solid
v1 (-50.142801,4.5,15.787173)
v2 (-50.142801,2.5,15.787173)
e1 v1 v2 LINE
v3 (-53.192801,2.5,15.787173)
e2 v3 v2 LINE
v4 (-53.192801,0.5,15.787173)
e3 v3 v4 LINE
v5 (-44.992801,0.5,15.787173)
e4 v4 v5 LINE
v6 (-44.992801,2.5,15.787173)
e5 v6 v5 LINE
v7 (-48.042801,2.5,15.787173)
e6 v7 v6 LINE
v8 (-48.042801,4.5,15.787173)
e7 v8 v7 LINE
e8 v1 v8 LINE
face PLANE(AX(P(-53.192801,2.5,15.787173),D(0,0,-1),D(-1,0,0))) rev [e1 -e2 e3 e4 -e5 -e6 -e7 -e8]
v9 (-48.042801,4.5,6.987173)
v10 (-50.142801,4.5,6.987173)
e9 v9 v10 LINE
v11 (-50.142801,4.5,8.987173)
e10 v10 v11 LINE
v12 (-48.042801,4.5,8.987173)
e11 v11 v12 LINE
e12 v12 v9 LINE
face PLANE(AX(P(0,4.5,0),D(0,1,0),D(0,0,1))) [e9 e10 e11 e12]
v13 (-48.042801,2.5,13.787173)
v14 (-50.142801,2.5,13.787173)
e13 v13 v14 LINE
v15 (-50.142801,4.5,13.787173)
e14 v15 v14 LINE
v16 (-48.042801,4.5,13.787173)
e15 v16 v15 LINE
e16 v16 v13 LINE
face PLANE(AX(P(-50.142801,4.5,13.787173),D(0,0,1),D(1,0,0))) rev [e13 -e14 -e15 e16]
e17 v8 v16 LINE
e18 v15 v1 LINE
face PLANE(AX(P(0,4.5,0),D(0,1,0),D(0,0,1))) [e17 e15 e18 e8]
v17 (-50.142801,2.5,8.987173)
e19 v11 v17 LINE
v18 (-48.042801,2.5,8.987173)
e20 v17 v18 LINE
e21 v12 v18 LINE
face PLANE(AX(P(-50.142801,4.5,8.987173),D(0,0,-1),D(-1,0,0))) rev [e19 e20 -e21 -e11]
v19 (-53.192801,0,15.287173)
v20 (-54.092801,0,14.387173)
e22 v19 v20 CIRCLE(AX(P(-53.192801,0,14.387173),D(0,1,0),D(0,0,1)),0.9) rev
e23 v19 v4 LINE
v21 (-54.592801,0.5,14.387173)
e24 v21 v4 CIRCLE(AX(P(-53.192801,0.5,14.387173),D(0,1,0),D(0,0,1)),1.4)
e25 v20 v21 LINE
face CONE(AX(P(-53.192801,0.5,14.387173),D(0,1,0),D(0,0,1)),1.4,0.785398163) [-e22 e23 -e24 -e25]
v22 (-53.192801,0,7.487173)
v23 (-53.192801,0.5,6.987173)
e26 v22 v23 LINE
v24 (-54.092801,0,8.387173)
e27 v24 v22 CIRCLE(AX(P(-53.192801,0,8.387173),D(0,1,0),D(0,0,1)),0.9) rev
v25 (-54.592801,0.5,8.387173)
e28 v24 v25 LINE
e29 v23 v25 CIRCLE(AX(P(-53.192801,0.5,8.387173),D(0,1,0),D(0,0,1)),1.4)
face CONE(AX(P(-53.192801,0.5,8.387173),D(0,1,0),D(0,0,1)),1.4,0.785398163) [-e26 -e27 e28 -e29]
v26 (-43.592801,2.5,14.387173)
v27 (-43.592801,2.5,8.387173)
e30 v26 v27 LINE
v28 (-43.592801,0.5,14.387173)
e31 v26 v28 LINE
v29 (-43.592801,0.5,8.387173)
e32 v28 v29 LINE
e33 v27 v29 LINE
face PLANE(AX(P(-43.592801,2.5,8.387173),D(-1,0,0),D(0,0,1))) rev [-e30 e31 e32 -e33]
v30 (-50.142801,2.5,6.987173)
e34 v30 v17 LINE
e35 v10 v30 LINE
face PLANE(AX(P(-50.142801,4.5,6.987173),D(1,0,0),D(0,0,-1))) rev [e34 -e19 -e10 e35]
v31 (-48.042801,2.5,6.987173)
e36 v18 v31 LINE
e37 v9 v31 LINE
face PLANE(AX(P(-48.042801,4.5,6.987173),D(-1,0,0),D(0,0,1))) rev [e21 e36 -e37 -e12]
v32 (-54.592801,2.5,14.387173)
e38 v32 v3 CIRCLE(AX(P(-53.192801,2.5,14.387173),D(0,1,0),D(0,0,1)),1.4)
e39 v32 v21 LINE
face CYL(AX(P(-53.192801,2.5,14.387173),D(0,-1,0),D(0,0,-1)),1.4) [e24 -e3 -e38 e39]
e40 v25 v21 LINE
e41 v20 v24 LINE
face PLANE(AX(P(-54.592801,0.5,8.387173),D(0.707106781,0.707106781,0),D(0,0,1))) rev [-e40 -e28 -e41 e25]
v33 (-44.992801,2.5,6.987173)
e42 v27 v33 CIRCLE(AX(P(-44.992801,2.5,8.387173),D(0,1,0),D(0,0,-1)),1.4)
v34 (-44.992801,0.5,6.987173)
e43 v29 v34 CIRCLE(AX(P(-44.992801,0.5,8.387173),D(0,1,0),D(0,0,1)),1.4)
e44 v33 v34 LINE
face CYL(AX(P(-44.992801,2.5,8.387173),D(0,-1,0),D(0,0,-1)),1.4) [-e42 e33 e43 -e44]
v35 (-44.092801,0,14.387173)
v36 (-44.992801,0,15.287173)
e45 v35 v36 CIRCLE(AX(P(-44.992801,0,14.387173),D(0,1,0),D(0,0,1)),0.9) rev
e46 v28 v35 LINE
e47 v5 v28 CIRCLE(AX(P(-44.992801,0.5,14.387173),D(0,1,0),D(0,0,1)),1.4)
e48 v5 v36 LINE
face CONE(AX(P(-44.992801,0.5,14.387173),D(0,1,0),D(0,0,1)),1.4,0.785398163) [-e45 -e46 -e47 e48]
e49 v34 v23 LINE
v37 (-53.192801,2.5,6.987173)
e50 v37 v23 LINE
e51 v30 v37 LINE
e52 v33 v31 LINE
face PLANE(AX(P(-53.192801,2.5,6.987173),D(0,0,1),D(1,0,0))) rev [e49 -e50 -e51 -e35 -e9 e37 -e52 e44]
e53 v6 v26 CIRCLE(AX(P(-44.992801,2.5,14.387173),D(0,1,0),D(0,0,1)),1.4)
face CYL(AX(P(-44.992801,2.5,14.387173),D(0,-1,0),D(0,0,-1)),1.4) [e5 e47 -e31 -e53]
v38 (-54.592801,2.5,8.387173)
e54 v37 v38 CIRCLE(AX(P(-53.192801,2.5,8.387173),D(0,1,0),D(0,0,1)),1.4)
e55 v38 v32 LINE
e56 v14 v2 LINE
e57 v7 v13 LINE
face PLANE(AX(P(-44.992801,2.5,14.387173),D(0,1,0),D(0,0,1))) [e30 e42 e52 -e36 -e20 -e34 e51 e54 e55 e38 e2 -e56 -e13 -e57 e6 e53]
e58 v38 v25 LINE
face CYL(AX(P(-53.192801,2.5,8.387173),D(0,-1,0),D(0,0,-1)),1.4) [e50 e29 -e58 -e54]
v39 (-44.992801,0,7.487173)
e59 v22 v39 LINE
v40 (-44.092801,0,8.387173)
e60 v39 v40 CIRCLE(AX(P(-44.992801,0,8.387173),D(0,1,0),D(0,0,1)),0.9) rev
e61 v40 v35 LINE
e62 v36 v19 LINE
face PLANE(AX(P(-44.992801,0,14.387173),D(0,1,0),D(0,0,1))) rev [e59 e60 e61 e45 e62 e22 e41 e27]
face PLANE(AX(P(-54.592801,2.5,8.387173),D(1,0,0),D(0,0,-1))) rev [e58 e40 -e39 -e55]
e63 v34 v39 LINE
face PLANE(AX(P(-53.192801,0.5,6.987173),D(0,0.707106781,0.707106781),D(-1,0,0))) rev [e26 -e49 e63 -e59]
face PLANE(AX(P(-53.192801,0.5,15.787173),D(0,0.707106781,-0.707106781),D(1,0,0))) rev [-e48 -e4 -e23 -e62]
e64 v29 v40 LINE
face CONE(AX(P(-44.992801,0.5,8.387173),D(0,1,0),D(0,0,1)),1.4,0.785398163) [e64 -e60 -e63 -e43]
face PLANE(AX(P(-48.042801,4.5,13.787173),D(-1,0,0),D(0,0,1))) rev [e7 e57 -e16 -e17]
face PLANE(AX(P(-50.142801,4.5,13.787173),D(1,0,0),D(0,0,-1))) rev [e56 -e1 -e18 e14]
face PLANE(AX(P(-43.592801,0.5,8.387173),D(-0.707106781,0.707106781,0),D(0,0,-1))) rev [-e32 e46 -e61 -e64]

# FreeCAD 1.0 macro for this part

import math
import FreeCAD as App
import Part
import Sketcher
Q = App.Units.Quantity


def edges_at(feature, points):
    """Names of the edges that pass closest to the given points."""
    edges = feature.Shape.Edges
    near = lambda p: min(range(len(edges)), key=lambda i: edges[i].distToShape(Part.Vertex(*p))[0])
    return sorted({f"Edge{near(p) + 1}" for p in points})

doc = App.newDocument("Part")
params = doc.addObject("Spreadsheet::Sheet", "Params")
for row, (alias, value) in enumerate([
    ("sketch1_radius", "1.4 mm"),
    ("sketch1_height", "6 mm"),
    ("sketch1_width", "8.2 mm"),
    ("pad1_length", "2.5 mm"),
    ("chamfer_size", "0.5 mm"),
    ("sketch2_height", "2 mm"),
    ("sketch2_width", "2.1 mm"),
    ("pad2_length", "2 mm"),
], start=1):
    params.set(f"A{row}", alias)
    params.set(f"B{row}", "=" + value)
    params.setAlias(f"B{row}", alias)

body = doc.addObject("PartDesign::Body", "Body")

sketch1 = body.newObject("Sketcher::SketchObject", "Sketch")
sketch1.AttachmentSupport = (doc.getObject("XZ_Plane"), [""])
sketch1.MapMode = "FlatFace"
sketch1.addGeometry(Part.LineSegment(App.Vector(-44.992801, 6.987173, 0), App.Vector(-53.192801, 6.987173, 0)), False)
sketch1.addGeometry(Part.ArcOfCircle(Part.Circle(App.Vector(-53.192801, 8.387173, 0), App.Vector(0, 0, 1), 1.4), math.radians(-180), math.radians(-90)), False)
sketch1.addGeometry(Part.LineSegment(App.Vector(-54.592801, 8.387173, 0), App.Vector(-54.592801, 14.387173, 0)), False)
sketch1.addGeometry(Part.ArcOfCircle(Part.Circle(App.Vector(-53.192801, 14.387173, 0), App.Vector(0, 0, 1), 1.4), math.radians(90), math.radians(180)), False)
sketch1.addGeometry(Part.LineSegment(App.Vector(-53.192801, 15.787173, 0), App.Vector(-44.992801, 15.787173, 0)), False)
sketch1.addGeometry(Part.ArcOfCircle(Part.Circle(App.Vector(-44.992801, 14.387173, 0), App.Vector(0, 0, 1), 1.4), math.radians(0), math.radians(90)), False)
sketch1.addGeometry(Part.LineSegment(App.Vector(-43.592801, 14.387173, 0), App.Vector(-43.592801, 8.387173, 0)), False)
sketch1.addGeometry(Part.ArcOfCircle(Part.Circle(App.Vector(-44.992801, 8.387173, 0), App.Vector(0, 0, 1), 1.4), math.radians(-90), math.radians(0)), False)
sketch1.addConstraint(Sketcher.Constraint("Tangent", 0, 2, 1, 2))
sketch1.addConstraint(Sketcher.Constraint("Tangent", 1, 1, 2, 1))
sketch1.addConstraint(Sketcher.Constraint("Tangent", 2, 2, 3, 2))
sketch1.addConstraint(Sketcher.Constraint("Tangent", 3, 1, 4, 1))
sketch1.addConstraint(Sketcher.Constraint("Tangent", 4, 2, 5, 2))
sketch1.addConstraint(Sketcher.Constraint("Tangent", 5, 1, 6, 1))
sketch1.addConstraint(Sketcher.Constraint("Tangent", 6, 2, 7, 2))
sketch1.addConstraint(Sketcher.Constraint("Tangent", 7, 1, 0, 1))
sketch1.addConstraint(Sketcher.Constraint("Horizontal", 0))
sketch1.addConstraint(Sketcher.Constraint("Vertical", 2))
sketch1.addConstraint(Sketcher.Constraint("Horizontal", 4))
sketch1.addConstraint(Sketcher.Constraint("Vertical", 6))
sketch1.addConstraint(Sketcher.Constraint("Equal", 1, 3))
sketch1.addConstraint(Sketcher.Constraint("Equal", 3, 5))
sketch1.addConstraint(Sketcher.Constraint("Equal", 5, 7))
sketch1.addConstraint(Sketcher.Constraint("Radius", 1, Q("1.4 mm")))
sketch1.addConstraint(Sketcher.Constraint("DistanceY", 2, 1, 2, 2, Q("6 mm")))
sketch1.addConstraint(Sketcher.Constraint("DistanceX", 0, 2, 0, 1, Q("8.2 mm")))
sketch1.addConstraint(Sketcher.Constraint("DistanceX", 1, 3, -1, 1, Q("53.192801 mm")))
sketch1.addConstraint(Sketcher.Constraint("DistanceY", -1, 1, 1, 3, Q("8.387173 mm")))
sketch1.setExpression("Constraints[15]", "Params.sketch1_radius")
sketch1.setExpression("Constraints[16]", "Params.sketch1_height")
sketch1.setExpression("Constraints[17]", "Params.sketch1_width")
pad1 = body.newObject("PartDesign::Pad", "Pad")
pad1.Profile = sketch1
pad1.setExpression("Length", "Params.pad1_length")
pad1.Reversed = True
doc.recompute()

chamfer = body.newObject("PartDesign::Chamfer", "Chamfer")
chamfer.Base = (pad1, edges_at(pad1, [
    (-49.093, 0, 6.987),
    (-44.003, 0, 7.397),
    (-43.593, 0, 11.387),
    (-44.003, 0, 15.377),
    (-49.093, 0, 15.787),
    (-54.183, 0, 15.377),
    (-54.593, 0, 11.387),
    (-54.183, 0, 7.397),
]))
chamfer.setExpression("Size", "Params.chamfer_size")

sketch2 = body.newObject("Sketcher::SketchObject", "Sketch001")
sketch2.AttachmentSupport = (doc.getObject("XZ_Plane"), [""])
sketch2.MapMode = "FlatFace"
sketch2.AttachmentOffset = App.Placement(App.Vector(0, 0, -2.5), App.Rotation())
sketch2.addGeometry(Part.LineSegment(App.Vector(-50.142801, 6.987173, 0), App.Vector(-50.142801, 8.987173, 0)), False)
sketch2.addGeometry(Part.LineSegment(App.Vector(-50.142801, 8.987173, 0), App.Vector(-48.042801, 8.987173, 0)), False)
sketch2.addGeometry(Part.LineSegment(App.Vector(-48.042801, 8.987173, 0), App.Vector(-48.042801, 6.987173, 0)), False)
sketch2.addGeometry(Part.LineSegment(App.Vector(-48.042801, 6.987173, 0), App.Vector(-50.142801, 6.987173, 0)), False)
sketch2.addGeometry(Part.LineSegment(App.Vector(-50.142801, 13.787173, 0), App.Vector(-50.142801, 15.787173, 0)), False)
sketch2.addGeometry(Part.LineSegment(App.Vector(-50.142801, 15.787173, 0), App.Vector(-48.042801, 15.787173, 0)), False)
sketch2.addGeometry(Part.LineSegment(App.Vector(-48.042801, 15.787173, 0), App.Vector(-48.042801, 13.787173, 0)), False)
sketch2.addGeometry(Part.LineSegment(App.Vector(-48.042801, 13.787173, 0), App.Vector(-50.142801, 13.787173, 0)), False)
sketch2.addConstraint(Sketcher.Constraint("Coincident", 0, 2, 1, 1))
sketch2.addConstraint(Sketcher.Constraint("Coincident", 1, 2, 2, 1))
sketch2.addConstraint(Sketcher.Constraint("Coincident", 2, 2, 3, 1))
sketch2.addConstraint(Sketcher.Constraint("Coincident", 3, 2, 0, 1))
sketch2.addConstraint(Sketcher.Constraint("Coincident", 4, 2, 5, 1))
sketch2.addConstraint(Sketcher.Constraint("Coincident", 5, 2, 6, 1))
sketch2.addConstraint(Sketcher.Constraint("Coincident", 6, 2, 7, 1))
sketch2.addConstraint(Sketcher.Constraint("Coincident", 7, 2, 4, 1))
sketch2.addConstraint(Sketcher.Constraint("Vertical", 0))
sketch2.addConstraint(Sketcher.Constraint("Horizontal", 1))
sketch2.addConstraint(Sketcher.Constraint("Vertical", 2))
sketch2.addConstraint(Sketcher.Constraint("Horizontal", 3))
sketch2.addConstraint(Sketcher.Constraint("Vertical", 4))
sketch2.addConstraint(Sketcher.Constraint("Horizontal", 5))
sketch2.addConstraint(Sketcher.Constraint("Vertical", 6))
sketch2.addConstraint(Sketcher.Constraint("Horizontal", 7))
sketch2.addConstraint(Sketcher.Constraint("Vertical", 3, 2, 4, 2))
sketch2.addConstraint(Sketcher.Constraint("Vertical", 2, 2, 5, 2))
sketch2.addConstraint(Sketcher.Constraint("Equal", 2, 4))
sketch2.addConstraint(Sketcher.Constraint("DistanceY", 0, 1, 0, 2, Q("2 mm")))
sketch2.addConstraint(Sketcher.Constraint("DistanceX", 1, 1, 1, 2, Q("2.1 mm")))
sketch2.addConstraint(Sketcher.Constraint("DistanceY", 0, 2, 4, 2, Q("6.8 mm")))
sketch2.addConstraint(Sketcher.Constraint("DistanceX", 0, 2, -1, 1, Q("50.142801 mm")))
sketch2.addConstraint(Sketcher.Constraint("DistanceY", -1, 1, 0, 2, Q("8.987173 mm")))
sketch2.setExpression("Constraints[19]", "Params.sketch2_height")
sketch2.setExpression("Constraints[20]", "Params.sketch2_width")
pad2 = body.newObject("PartDesign::Pad", "Pad001")
pad2.Profile = sketch2
pad2.setExpression("Length", "Params.pad2_length")
pad2.Reversed = True

doc.recompute()
